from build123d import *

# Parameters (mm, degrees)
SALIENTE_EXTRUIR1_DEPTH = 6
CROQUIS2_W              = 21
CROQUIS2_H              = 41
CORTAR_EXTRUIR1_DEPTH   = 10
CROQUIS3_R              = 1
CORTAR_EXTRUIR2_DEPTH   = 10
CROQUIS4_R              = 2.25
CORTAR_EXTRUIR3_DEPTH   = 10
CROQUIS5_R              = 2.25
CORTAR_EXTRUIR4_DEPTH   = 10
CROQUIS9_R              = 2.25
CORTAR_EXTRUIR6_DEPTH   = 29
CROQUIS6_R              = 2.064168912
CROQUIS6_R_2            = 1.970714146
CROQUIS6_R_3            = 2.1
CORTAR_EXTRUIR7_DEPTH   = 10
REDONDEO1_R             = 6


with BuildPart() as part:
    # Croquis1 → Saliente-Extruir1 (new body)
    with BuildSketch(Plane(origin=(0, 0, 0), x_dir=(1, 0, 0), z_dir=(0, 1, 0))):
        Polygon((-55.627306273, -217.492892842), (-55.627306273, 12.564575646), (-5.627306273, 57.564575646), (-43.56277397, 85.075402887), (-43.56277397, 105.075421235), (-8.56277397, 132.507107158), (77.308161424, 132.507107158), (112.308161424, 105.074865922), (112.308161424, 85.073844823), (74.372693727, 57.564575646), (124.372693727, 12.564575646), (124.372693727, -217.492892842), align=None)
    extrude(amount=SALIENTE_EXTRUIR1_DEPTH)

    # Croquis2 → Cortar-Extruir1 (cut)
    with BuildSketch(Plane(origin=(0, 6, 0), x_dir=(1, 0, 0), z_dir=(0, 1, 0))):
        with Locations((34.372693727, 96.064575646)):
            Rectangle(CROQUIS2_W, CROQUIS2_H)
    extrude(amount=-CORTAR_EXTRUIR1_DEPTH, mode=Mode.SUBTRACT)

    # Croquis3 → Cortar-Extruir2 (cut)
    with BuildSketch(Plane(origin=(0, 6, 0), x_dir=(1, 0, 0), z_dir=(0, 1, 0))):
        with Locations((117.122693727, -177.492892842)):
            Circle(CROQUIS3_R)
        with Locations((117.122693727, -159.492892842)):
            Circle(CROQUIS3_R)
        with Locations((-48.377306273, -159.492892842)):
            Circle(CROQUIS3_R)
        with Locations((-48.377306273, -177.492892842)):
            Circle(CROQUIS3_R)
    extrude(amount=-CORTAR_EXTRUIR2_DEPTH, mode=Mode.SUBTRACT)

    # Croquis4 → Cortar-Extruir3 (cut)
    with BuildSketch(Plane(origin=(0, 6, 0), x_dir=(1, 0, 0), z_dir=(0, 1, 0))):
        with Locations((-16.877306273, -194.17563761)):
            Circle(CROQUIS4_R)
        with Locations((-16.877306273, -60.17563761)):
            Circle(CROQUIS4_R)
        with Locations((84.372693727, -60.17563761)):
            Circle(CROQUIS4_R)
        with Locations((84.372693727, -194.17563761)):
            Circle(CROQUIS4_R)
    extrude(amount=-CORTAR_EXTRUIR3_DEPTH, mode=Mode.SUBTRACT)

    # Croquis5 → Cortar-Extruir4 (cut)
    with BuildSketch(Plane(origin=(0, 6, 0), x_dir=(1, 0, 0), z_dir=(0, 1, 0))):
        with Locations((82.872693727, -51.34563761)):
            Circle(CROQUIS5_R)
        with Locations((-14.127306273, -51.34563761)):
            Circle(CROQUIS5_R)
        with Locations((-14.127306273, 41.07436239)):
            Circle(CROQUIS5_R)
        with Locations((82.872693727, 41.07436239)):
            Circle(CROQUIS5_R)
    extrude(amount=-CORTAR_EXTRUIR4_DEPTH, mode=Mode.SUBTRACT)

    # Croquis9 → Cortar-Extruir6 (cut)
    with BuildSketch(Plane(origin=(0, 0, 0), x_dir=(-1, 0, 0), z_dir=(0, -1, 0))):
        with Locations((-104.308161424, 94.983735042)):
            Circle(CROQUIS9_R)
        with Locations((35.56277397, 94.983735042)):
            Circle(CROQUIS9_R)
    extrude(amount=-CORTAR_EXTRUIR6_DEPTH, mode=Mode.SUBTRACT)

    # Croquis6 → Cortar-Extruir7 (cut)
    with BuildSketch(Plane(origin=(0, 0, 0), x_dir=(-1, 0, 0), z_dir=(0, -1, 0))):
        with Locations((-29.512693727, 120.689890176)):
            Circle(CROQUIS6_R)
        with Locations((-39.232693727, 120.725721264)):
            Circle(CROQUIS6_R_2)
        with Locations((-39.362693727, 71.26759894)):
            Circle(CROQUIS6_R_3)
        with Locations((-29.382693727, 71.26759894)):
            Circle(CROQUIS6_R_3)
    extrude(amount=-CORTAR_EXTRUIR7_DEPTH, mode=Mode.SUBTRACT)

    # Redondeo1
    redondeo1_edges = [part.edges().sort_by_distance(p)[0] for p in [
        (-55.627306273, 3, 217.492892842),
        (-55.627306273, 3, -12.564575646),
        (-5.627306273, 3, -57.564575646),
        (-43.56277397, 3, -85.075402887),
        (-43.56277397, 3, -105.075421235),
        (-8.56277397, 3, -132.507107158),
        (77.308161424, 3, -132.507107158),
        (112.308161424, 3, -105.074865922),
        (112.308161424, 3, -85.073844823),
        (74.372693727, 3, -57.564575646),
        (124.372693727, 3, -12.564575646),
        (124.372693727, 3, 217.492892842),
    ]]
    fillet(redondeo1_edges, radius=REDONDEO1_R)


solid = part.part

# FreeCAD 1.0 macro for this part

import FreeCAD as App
import Part
import Sketcher
from FreeCAD import Vector
Q = App.Units.Quantity


def edges_at(feature, points):
    """Names of the edges that pass closest to the given points."""
    edges = feature.Shape.Edges
    near = lambda p: min(range(len(edges)), key=lambda i: edges[i].distToShape(Part.Vertex(*p))[0])
    return sorted({f"Edge{near(p) + 1}" for p in points})


def add_polygon(sketch, points):
    """Adds a closed chain of lines whose ends are joined by coincident constraints."""
    first, n = sketch.GeometryCount, len(points)
    for a, b in zip(points, points[1:] + points[:1]):
        sketch.addGeometry(Part.LineSegment(App.Vector(*a, 0), App.Vector(*b, 0)), False)
    for i in range(n):
        sketch.addConstraint(Sketcher.Constraint("Coincident", first + i, 2, first + (i + 1) % n, 1))

doc = App.newDocument("Part")
body = doc.addObject("PartDesign::Body", "Body")

# Sketch on XZ plane
sketch1 = body.newObject("Sketcher::SketchObject", "Sketch")
sketch1.AttachmentSupport = (doc.getObject("XZ_Plane"), [""])
sketch1.MapMode = "FlatFace"
add_polygon(sketch1, [(-56, -13), (-56, 217), (124, 217), (124, -13), (74, -58), (112, -85), (112, -105), (77, -133), (-9, -133), (-44, -105), (-44, -85), (-6, -58)])  # lines 0-11
sketch1.addConstraint([
    Sketcher.Constraint("Vertical", 0),
    Sketcher.Constraint("Horizontal", 1),
    Sketcher.Constraint("Vertical", 2),
    Sketcher.Constraint("Vertical", 5),
    Sketcher.Constraint("Horizontal", 7),
    Sketcher.Constraint("Vertical", 9),
    Sketcher.Constraint("Horizontal", 3, 2, 10, 2),
    Sketcher.Constraint("Horizontal", 2, 2, 11, 2),
    Sketcher.Constraint("Equal", 3, 11),
    Sketcher.Constraint("DistanceX", 1, 1, 1, 2, Q("180 mm")),
    Sketcher.Constraint("DistanceX", 3, 2, 2, 2, Q("50 mm")),
    Sketcher.Constraint("DistanceY", 3, 2, 2, 2, Q("45 mm")),
    Sketcher.Constraint("DistanceX", 6, 2, 5, 2, Q("35 mm")),
    Sketcher.Constraint("DistanceY", 6, 2, 1, 2, Q("350 mm")),
    Sketcher.Constraint("DistanceX", 8, 2, 7, 2, Q("35 mm")),
    Sketcher.Constraint("Distance", 4, Q("46.86 mm")),
    Sketcher.Constraint("DistanceY", 0, 1, 0, 2, Q("230.057468 mm")),
    Sketcher.Constraint("DistanceY", 5, 2, 5, 1, Q("20.001021 mm")),
    Sketcher.Constraint("DistanceY", 9, 1, 9, 2, Q("20.000018 mm")),
    Sketcher.Constraint("Distance", 8, Q("44.469061 mm")),
    Sketcher.Constraint("DistanceX", 7, 2, 7, 1, Q("85.870935 mm")),
    Sketcher.Constraint("DistanceX", -1, 1, 4, 2, Q("112.308161 mm")),
    Sketcher.Constraint("DistanceY", 8, 2, -1, 1, Q("105.075421 mm")),
    Sketcher.Constraint("DistanceY", 4, 2, 3, 2, Q("27.509269 mm")),
])
pad1 = body.newObject("PartDesign::Pad", "Pad")
pad1.Profile = sketch1
pad1.Length = 6
pad1.Reversed = True

# Sketch on XZ plane
sketch2 = body.newObject("Sketcher::SketchObject", "Sketch001")
sketch2.AttachmentSupport = (doc.getObject("XZ_Plane"), [""])
sketch2.MapMode = "FlatFace"
sketch2.AttachmentOffset = App.Placement(Vector(0, 0, -6), App.Rotation())
add_polygon(sketch2, [(24, -117), (24, -76), (45, -76), (45, -117)])  # lines 0-3
sketch2.addConstraint([
    Sketcher.Constraint("Vertical", 0),
    Sketcher.Constraint("Horizontal", 1),
    Sketcher.Constraint("Vertical", 2),
    Sketcher.Constraint("Horizontal", 3),
    Sketcher.Constraint("DistanceX", 1, 1, 1, 2, Q("21 mm")),
    Sketcher.Constraint("DistanceY", 0, 1, 0, 2, Q("41 mm")),
    Sketcher.Constraint("DistanceX", -1, 1, 0, 2, Q("23.872694 mm")),
    Sketcher.Constraint("DistanceY", 0, 2, -1, 1, Q("75.564576 mm")),
])
pocket1 = body.newObject("PartDesign::Pocket", "Pocket")
pocket1.Profile = sketch2
pocket1.Length = 10
pocket1.Reversed = True

# Sketch on XZ plane
sketch3 = body.newObject("Sketcher::SketchObject", "Sketch002")
sketch3.AttachmentSupport = (doc.getObject("XZ_Plane"), [""])
sketch3.MapMode = "FlatFace"
sketch3.AttachmentOffset = App.Placement(Vector(0, 0, -6), App.Rotation())
sketch3.addGeometry([
    Part.Circle(Vector(117.1, 177.5, 0), Vector(0, 0, 1), 1),
    Part.Circle(Vector(117.1, 159.5, 0), Vector(0, 0, 1), 1),
    Part.Circle(Vector(-48.4, 159.5, 0), Vector(0, 0, 1), 1),
    Part.Circle(Vector(-48.4, 177.5, 0), Vector(0, 0, 1), 1),
], False)
sketch3.addConstraint([
    Sketcher.Constraint("Equal", 0, 1),
    Sketcher.Constraint("Equal", 1, 2),
    Sketcher.Constraint("Equal", 2, 3),
    Sketcher.Constraint("Horizontal", 1, 3, 2, 3),
    Sketcher.Constraint("Horizontal", 0, 3, 3, 3),
    Sketcher.Constraint("Vertical", 0, 3, 1, 3),
    Sketcher.Constraint("Vertical", 2, 3, 3, 3),
    Sketcher.Constraint("Diameter", 0, Q("2 mm")),
    Sketcher.Constraint("DistanceY", 1, 3, 0, 3, Q("18 mm")),
    Sketcher.Constraint("DistanceX", 2, 3, 1, 3, Q("165.5 mm")),
    Sketcher.Constraint("DistanceX", -1, 1, 0, 3, Q("117.122694 mm")),
    Sketcher.Constraint("DistanceY", -1, 1, 0, 3, Q("177.492893 mm")),
])
pocket2 = body.newObject("PartDesign::Pocket", "Pocket001")
pocket2.Profile = sketch3
pocket2.Length = 10
pocket2.Reversed = True

# Sketch on XZ plane
sketch4 = body.newObject("Sketcher::SketchObject", "Sketch003")
sketch4.AttachmentSupport = (doc.getObject("XZ_Plane"), [""])
sketch4.MapMode = "FlatFace"
sketch4.AttachmentOffset = App.Placement(Vector(0, 0, -6), App.Rotation())
sketch4.addGeometry([
    Part.Circle(Vector(-16.9, 194.2, 0), Vector(0, 0, 1), 2.2),
    Part.Circle(Vector(-16.9, 60.2, 0), Vector(0, 0, 1), 2.2),
    Part.Circle(Vector(84.4, 60.2, 0), Vector(0, 0, 1), 2.2),
    Part.Circle(Vector(84.4, 194.2, 0), Vector(0, 0, 1), 2.2),
], False)
sketch4.addConstraint([
    Sketcher.Constraint("Equal", 0, 1),
    Sketcher.Constraint("Equal", 1, 2),
    Sketcher.Constraint("Equal", 2, 3),
    Sketcher.Constraint("Horizontal", 1, 3, 2, 3),
    Sketcher.Constraint("Horizontal", 0, 3, 3, 3),
    Sketcher.Constraint("Vertical", 0, 3, 1, 3),
    Sketcher.Constraint("Vertical", 2, 3, 3, 3),
    Sketcher.Constraint("Diameter", 0, Q("4.5 mm")),
    Sketcher.Constraint("DistanceY", 1, 3, 0, 3, Q("134 mm")),
    Sketcher.Constraint("DistanceX", 1, 3, 2, 3, Q("101.25 mm")),
    Sketcher.Constraint("DistanceX", 0, 3, -1, 1, Q("16.877306 mm")),
    Sketcher.Constraint("DistanceY", -1, 1, 0, 3, Q("194.175638 mm")),
])
pocket3 = body.newObject("PartDesign::Pocket", "Pocket002")
pocket3.Profile = sketch4
pocket3.Length = 10
pocket3.Reversed = True

# Sketch on XZ plane
sketch5 = body.newObject("Sketcher::SketchObject", "Sketch004")
sketch5.AttachmentSupport = (doc.getObject("XZ_Plane"), [""])
sketch5.MapMode = "FlatFace"
sketch5.AttachmentOffset = App.Placement(Vector(0, 0, -6), App.Rotation())
sketch5.addGeometry([
    Part.Circle(Vector(82.9, 51.3, 0), Vector(0, 0, 1), 2.2),
    Part.Circle(Vector(-14.1, 51.3, 0), Vector(0, 0, 1), 2.2),
    Part.Circle(Vector(-14.1, -41.1, 0), Vector(0, 0, 1), 2.2),
    Part.Circle(Vector(82.9, -41.1, 0), Vector(0, 0, 1), 2.2),
], False)
sketch5.addConstraint([
    Sketcher.Constraint("Equal", 0, 1),
    Sketcher.Constraint("Equal", 1, 2),
    Sketcher.Constraint("Equal", 2, 3),
    Sketcher.Constraint("Horizontal", 0, 3, 1, 3),
    Sketcher.Constraint("Horizontal", 2, 3, 3, 3),
    Sketcher.Constraint("Vertical", 1, 3, 2, 3),
    Sketcher.Constraint("Vertical", 0, 3, 3, 3),
    Sketcher.Constraint("Diameter", 0, Q("4.5 mm")),
    Sketcher.Constraint("DistanceX", 1, 3, 0, 3, Q("97 mm")),
    Sketcher.Constraint("DistanceY", 2, 3, 1, 3, Q("92.42 mm")),
    Sketcher.Constraint("DistanceX", -1, 1, 0, 3, Q("82.872694 mm")),
    Sketcher.Constraint("DistanceY", -1, 1, 0, 3, Q("51.345638 mm")),
])
pocket4 = body.newObject("PartDesign::Pocket", "Pocket003")
pocket4.Profile = sketch5
pocket4.Length = 10
pocket4.Reversed = True

# Sketch on XZ plane
sketch6 = body.newObject("Sketcher::SketchObject", "Sketch005")
sketch6.AttachmentSupport = (doc.getObject("XZ_Plane"), [""])
sketch6.MapMode = "FlatFace"
sketch6.addGeometry([
    Part.Circle(Vector(104.3, -95, 0), Vector(0, 0, 1), 2.2),
    Part.Circle(Vector(-35.6, -95, 0), Vector(0, 0, 1), 2.2),
], False)
sketch6.addConstraint([
    Sketcher.Constraint("Equal", 0, 1),
    Sketcher.Constraint("Horizontal", 0, 3, 1, 3),
    Sketcher.Constraint("Diameter", 0, Q("4.5 mm")),
    Sketcher.Constraint("DistanceX", -1, 1, 0, 3, Q("104.308161 mm")),
    Sketcher.Constraint("DistanceY", 0, 3, -1, 1, Q("94.983735 mm")),
    Sketcher.Constraint("DistanceX", 1, 3, -1, 1, Q("35.562774 mm")),
])
pocket5 = body.newObject("PartDesign::Pocket", "Pocket004")
pocket5.Profile = sketch6
pocket5.Length = 29

# Sketch on XZ plane
sketch7 = body.newObject("Sketcher::SketchObject", "Sketch006")
sketch7.AttachmentSupport = (doc.getObject("XZ_Plane"), [""])
sketch7.MapMode = "FlatFace"
sketch7.addGeometry([
    Part.Circle(Vector(29.5, -120.7, 0), Vector(0, 0, 1), 2.1),
    Part.Circle(Vector(39.2, -120.7, 0), Vector(0, 0, 1), 2),
    Part.Circle(Vector(39.4, -71.3, 0), Vector(0, 0, 1), 2.1),
    Part.Circle(Vector(29.4, -71.3, 0), Vector(0, 0, 1), 2.1),
], False)
sketch7.addConstraint([
    Sketcher.Constraint("Equal", 2, 3),
    Sketcher.Constraint("Horizontal", 2, 3, 3, 3),
    Sketcher.Constraint("Diameter", 2, Q("4.2 mm")),
    Sketcher.Constraint("Diameter", 1, Q("3.941428 mm")),
    Sketcher.Constraint("DistanceX", 0, 3, 1, 3, Q("9.72 mm")),
    Sketcher.Constraint("DistanceX", 1, 3, 2, 3, Q("0.13 mm")),
    Sketcher.Constraint("DistanceX", 3, 3, 2, 3, Q("9.98 mm")),
    Sketcher.Constraint("Diameter", 0, Q("4.128338 mm")),
    Sketcher.Constraint("DistanceY", 2, 3, -1, 1, Q("71.267599 mm")),
    Sketcher.Constraint("DistanceY", 0, 3, -1, 1, Q("120.68989 mm")),
    Sketcher.Constraint("DistanceY", 1, 3, -1, 1, Q("120.725721 mm")),
    Sketcher.Constraint("DistanceX", -1, 1, 0, 3, Q("29.512694 mm")),
])
pocket6 = body.newObject("PartDesign::Pocket", "Pocket005")
pocket6.Profile = sketch7
pocket6.Length = 10
doc.recompute()

fillet = body.newObject("PartDesign::Fillet", "Fillet")
fillet.Base = (pocket6, edges_at(pocket6, [
    (-55.627, 3, 217.493),
    (-55.627, 3, -12.565),
    (-5.627, 3, -57.565),
    (-43.563, 3, -85.075),
    (-43.563, 3, -105.075),
    (-8.563, 3, -132.507),
    (77.308, 3, -132.507),
    (112.308, 3, -105.075),
    (112.308, 3, -85.074),
    (74.373, 3, -57.565),
    (124.373, 3, -12.565),
    (124.373, 3, 217.493),
]))
fillet.Radius = 6

doc.recompute()
